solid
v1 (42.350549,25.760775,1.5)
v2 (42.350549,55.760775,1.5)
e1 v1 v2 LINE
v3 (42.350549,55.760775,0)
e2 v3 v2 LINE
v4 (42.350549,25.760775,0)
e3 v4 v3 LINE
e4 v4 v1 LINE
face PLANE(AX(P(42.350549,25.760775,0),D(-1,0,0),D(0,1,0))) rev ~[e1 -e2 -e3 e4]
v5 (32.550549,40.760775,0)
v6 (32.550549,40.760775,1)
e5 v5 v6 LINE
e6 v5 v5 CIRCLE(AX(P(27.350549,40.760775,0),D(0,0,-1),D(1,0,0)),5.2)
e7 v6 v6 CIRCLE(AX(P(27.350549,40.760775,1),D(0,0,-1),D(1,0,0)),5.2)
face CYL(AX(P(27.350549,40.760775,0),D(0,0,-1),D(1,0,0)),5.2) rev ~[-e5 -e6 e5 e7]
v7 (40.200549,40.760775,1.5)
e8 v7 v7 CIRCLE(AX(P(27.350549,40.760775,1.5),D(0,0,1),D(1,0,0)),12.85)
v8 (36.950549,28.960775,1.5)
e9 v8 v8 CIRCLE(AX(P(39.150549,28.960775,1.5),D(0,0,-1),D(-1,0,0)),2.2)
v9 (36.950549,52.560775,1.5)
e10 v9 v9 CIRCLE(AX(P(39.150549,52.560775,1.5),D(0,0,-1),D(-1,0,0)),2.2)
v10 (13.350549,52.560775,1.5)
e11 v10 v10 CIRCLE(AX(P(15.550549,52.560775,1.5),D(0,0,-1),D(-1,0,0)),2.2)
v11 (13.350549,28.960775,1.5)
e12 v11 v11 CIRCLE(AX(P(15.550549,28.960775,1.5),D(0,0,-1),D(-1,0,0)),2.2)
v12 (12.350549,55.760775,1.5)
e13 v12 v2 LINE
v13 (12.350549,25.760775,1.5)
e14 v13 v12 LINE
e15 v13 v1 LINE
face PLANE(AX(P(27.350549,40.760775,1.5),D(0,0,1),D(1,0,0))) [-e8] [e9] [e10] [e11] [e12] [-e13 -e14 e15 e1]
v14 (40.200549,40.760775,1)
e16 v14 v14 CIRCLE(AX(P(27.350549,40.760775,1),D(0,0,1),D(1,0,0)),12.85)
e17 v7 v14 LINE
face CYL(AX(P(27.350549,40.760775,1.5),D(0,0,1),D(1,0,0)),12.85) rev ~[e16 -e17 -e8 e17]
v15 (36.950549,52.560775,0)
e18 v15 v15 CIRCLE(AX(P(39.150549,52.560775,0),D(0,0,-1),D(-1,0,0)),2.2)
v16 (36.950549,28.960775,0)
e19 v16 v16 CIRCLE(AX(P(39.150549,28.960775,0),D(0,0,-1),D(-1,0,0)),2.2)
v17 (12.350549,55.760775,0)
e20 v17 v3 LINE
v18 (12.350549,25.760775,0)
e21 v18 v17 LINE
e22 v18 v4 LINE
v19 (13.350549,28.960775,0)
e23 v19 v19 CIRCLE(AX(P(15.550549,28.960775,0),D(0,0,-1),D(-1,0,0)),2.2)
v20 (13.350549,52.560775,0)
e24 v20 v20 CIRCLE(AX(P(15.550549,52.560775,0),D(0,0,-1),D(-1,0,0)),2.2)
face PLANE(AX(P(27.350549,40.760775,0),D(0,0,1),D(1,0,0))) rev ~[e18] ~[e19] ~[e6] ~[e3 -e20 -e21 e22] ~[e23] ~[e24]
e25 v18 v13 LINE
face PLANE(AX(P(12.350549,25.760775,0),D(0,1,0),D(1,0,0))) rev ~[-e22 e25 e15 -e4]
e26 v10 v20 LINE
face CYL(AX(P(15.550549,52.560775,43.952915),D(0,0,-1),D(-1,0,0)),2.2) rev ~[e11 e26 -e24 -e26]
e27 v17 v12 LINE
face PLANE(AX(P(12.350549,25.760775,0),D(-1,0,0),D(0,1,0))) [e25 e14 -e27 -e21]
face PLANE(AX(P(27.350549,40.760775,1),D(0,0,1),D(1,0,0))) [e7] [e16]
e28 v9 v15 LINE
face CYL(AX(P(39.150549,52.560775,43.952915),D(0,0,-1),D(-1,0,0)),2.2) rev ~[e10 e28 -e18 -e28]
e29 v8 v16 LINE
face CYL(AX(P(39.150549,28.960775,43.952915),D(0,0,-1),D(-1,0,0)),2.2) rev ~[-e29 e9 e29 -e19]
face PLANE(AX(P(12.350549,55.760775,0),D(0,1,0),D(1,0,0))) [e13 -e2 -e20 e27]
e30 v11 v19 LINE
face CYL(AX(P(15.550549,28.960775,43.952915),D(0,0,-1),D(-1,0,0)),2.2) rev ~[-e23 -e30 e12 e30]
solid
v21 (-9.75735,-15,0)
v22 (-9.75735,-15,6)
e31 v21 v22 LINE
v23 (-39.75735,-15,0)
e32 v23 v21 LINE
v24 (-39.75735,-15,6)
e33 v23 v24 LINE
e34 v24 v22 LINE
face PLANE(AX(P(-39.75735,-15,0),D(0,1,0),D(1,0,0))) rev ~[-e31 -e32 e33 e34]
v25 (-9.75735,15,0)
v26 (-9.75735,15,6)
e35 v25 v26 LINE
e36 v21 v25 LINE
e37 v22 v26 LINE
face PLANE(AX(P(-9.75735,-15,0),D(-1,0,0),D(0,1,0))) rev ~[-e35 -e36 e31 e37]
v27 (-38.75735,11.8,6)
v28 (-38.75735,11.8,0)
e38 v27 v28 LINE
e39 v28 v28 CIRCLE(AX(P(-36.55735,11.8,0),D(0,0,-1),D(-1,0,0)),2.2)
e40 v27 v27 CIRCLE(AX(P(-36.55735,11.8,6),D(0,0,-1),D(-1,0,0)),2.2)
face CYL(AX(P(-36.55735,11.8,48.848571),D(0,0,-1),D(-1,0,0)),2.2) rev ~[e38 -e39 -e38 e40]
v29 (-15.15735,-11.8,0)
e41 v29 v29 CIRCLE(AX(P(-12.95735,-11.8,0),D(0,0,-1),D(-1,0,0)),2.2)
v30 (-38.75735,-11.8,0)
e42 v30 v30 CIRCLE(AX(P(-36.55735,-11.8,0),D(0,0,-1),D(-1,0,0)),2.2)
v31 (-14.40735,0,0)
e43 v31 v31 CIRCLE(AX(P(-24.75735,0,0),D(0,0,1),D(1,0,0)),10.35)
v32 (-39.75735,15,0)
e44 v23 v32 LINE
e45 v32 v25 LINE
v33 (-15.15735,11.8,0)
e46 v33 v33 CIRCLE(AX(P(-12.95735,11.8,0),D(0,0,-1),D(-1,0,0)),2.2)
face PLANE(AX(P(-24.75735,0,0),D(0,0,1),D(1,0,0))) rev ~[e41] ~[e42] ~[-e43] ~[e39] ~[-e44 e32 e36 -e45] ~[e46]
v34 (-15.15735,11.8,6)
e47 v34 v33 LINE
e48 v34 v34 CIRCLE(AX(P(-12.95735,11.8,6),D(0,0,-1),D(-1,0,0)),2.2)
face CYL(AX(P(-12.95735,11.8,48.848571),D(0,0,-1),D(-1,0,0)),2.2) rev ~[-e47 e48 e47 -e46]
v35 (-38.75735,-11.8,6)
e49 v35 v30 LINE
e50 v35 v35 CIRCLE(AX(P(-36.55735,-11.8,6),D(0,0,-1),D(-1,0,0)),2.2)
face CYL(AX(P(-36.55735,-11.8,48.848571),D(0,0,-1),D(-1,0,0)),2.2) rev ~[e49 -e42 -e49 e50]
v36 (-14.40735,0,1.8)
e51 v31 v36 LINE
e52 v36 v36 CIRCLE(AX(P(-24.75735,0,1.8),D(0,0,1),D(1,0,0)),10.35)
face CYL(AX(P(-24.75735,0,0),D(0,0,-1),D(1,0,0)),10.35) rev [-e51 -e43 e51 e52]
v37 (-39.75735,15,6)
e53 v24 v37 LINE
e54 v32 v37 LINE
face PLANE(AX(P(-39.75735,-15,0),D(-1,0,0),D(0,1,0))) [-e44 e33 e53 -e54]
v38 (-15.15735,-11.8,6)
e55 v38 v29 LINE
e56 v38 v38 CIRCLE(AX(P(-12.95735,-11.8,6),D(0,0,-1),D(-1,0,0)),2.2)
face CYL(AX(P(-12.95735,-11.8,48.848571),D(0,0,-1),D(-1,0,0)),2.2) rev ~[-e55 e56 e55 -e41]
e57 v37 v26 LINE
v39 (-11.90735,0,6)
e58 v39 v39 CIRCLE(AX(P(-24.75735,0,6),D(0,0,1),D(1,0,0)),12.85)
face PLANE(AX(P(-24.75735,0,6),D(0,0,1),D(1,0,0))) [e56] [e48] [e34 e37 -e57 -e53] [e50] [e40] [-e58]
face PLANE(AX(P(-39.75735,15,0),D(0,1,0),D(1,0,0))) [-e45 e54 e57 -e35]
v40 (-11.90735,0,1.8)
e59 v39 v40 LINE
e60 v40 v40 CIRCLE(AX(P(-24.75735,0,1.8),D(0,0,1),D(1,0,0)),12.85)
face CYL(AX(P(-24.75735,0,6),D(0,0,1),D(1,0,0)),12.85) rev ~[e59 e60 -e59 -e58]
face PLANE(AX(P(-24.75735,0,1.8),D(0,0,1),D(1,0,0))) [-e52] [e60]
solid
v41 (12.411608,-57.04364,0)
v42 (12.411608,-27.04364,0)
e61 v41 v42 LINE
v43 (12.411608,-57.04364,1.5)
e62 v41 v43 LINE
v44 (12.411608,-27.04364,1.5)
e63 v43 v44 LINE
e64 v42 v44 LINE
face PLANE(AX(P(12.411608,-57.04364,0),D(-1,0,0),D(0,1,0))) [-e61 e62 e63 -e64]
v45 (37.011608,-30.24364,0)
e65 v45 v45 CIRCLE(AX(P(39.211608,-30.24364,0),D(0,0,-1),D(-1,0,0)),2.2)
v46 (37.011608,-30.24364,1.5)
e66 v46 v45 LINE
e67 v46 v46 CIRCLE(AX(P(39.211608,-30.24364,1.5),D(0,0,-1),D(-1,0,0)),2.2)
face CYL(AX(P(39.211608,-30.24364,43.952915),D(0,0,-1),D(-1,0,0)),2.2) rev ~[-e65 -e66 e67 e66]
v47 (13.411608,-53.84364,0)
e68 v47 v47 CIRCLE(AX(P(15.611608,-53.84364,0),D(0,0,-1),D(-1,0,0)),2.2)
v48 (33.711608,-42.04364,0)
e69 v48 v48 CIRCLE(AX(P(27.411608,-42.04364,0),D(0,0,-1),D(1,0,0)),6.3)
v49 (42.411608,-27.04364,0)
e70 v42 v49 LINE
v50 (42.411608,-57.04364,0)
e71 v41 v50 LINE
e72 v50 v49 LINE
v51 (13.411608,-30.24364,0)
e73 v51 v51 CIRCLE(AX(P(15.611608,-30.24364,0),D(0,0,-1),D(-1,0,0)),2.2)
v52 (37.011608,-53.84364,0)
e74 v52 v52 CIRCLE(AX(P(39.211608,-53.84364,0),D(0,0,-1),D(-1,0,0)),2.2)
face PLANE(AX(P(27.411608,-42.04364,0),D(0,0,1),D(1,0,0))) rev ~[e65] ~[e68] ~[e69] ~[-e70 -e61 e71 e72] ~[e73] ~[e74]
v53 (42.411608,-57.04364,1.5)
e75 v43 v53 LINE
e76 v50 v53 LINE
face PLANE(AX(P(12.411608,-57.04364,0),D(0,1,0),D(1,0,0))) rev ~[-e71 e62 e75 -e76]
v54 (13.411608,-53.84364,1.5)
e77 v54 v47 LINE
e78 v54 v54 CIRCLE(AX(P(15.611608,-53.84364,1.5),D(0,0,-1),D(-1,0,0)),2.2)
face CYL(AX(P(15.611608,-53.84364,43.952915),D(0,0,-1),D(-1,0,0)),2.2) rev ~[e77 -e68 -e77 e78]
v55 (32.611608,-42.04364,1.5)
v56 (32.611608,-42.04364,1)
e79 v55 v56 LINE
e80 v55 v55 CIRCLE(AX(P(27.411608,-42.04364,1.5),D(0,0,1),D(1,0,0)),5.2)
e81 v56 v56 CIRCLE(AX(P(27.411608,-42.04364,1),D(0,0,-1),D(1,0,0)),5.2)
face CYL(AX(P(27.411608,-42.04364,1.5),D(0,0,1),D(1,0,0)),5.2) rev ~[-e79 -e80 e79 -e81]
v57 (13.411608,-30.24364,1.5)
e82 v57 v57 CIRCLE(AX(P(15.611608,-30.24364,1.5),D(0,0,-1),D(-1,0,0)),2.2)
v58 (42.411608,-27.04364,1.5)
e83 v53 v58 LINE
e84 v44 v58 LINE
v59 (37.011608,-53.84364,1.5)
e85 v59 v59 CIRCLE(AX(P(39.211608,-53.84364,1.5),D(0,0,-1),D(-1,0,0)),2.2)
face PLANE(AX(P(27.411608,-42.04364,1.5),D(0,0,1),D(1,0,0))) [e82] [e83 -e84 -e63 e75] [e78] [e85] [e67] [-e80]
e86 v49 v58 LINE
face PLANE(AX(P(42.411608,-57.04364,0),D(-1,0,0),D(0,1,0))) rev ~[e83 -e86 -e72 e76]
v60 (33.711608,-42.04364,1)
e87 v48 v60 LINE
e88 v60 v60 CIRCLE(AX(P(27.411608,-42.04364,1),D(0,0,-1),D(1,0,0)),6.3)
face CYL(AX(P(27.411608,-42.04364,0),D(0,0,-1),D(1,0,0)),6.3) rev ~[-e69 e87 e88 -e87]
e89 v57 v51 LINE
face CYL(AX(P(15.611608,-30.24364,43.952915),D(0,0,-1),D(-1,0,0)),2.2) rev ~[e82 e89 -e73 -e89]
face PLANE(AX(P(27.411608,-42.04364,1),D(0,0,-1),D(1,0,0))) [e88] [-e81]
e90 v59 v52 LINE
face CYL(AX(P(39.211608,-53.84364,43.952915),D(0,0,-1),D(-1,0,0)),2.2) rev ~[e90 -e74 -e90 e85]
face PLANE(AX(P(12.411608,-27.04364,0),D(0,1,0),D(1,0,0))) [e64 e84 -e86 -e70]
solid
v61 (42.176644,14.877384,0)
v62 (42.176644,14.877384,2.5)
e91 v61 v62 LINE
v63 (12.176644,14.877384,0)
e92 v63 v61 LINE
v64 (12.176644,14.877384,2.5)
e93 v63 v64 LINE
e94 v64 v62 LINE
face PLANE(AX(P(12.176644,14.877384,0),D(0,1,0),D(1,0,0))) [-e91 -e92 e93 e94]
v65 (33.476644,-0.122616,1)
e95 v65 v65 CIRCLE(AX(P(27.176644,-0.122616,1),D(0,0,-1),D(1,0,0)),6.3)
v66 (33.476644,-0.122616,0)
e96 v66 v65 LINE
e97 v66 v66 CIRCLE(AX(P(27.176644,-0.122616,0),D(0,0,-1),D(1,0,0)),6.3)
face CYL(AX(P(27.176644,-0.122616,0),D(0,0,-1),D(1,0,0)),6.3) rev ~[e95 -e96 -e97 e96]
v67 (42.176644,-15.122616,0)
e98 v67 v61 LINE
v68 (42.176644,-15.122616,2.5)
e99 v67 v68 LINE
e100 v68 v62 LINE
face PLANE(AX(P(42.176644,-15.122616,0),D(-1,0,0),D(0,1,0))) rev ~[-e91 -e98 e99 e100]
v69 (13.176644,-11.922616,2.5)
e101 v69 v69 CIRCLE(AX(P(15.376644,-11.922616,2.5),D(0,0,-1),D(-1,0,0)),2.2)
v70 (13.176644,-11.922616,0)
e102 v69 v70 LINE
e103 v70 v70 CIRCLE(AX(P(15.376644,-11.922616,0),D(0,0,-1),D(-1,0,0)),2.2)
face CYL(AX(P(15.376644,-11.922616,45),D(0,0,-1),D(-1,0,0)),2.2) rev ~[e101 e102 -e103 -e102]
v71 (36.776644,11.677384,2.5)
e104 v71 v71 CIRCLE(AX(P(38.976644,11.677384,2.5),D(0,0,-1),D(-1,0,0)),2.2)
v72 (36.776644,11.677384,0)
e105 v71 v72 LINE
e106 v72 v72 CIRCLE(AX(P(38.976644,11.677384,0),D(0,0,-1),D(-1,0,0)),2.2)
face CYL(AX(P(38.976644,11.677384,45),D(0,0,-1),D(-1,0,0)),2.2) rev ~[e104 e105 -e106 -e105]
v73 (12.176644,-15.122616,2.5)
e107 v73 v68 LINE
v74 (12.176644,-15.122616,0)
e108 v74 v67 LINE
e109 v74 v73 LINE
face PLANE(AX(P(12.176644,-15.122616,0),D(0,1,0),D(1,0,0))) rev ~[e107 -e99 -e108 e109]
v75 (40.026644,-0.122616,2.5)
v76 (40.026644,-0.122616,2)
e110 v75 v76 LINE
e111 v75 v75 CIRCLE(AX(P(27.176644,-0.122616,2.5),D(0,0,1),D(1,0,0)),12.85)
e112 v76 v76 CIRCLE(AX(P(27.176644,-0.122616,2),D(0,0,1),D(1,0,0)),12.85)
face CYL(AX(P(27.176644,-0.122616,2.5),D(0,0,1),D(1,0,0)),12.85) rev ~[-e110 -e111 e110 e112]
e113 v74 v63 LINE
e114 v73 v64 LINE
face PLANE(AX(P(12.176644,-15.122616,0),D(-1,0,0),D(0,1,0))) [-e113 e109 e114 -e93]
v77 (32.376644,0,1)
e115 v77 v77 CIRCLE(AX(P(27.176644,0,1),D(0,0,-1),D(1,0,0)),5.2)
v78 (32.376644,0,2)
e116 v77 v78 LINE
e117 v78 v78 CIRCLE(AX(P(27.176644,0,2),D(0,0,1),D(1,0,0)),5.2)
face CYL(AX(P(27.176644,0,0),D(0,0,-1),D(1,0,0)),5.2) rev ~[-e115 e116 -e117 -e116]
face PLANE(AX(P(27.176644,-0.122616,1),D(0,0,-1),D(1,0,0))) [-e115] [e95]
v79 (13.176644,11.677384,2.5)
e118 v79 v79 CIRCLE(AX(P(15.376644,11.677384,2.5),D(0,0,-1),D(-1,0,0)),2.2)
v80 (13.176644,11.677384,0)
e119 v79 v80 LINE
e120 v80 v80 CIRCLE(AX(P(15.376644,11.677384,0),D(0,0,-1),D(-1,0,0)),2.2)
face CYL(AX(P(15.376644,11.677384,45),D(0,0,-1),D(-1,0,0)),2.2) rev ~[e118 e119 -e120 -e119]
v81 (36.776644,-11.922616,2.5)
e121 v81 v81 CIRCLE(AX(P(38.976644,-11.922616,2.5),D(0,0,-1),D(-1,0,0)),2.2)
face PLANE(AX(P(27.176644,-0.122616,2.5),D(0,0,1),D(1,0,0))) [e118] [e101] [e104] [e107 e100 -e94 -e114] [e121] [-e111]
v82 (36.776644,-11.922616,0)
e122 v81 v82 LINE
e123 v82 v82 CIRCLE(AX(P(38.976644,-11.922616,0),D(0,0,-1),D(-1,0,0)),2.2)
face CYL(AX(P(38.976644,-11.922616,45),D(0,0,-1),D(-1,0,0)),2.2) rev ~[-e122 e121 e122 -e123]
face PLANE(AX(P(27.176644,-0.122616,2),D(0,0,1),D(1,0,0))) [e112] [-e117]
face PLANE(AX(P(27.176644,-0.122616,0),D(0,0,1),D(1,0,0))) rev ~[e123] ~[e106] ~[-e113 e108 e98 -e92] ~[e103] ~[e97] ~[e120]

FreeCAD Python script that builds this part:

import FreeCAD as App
import Part
import Sketcher

V = App.Vector
Q = App.Units.Quantity


def add_polygon(sketch, points):
    """Adds a closed chain of lines whose ends are joined by coincident constraints."""
    first, n = sketch.GeometryCount, len(points)
    for a, b in zip(points, points[1:] + points[:1]):
        sketch.addGeometry(Part.LineSegment(App.Vector(*a, 0), App.Vector(*b, 0)), False)
    for i in range(n):
        sketch.addConstraint(Sketcher.Constraint("Coincident", first + i, 2, first + (i + 1) % n, 1))

doc = App.newDocument("Part")
body = doc.addObject("PartDesign::Body", "Body")

# Sketch on XY plane
sketch1 = body.newObject("Sketcher::SketchObject", "Sketch")
sketch1.AttachmentSupport = (doc.getObject("XY_Plane"), [""])
sketch1.MapMode = "FlatFace"
add_polygon(sketch1, [(-40, 15), (-40, -15), (-10, -15), (-10, 15)])  # lines 0-3
sketch1.addGeometry(Part.Circle(V(-25, 0, 0), V(0, 0, 1), 10), False)  # 4
sketch1.addConstraint([
    Sketcher.Constraint("Vertical", 0),
    Sketcher.Constraint("Horizontal", 1),
    Sketcher.Constraint("Vertical", 2),
    Sketcher.Constraint("Horizontal", 3),
    Sketcher.Constraint("PointOnObject", 4, 3, -1),
    Sketcher.Constraint("Equal", 3, 0),
    Sketcher.Constraint("Diameter", 4, Q("20.7 mm")),
    Sketcher.Constraint("DistanceX", 1, 1, 1, 2, Q("30 mm")),
    Sketcher.Constraint("DistanceY", 0, 2, -1, 1, Q("15 mm")),
    Sketcher.Constraint("DistanceX", 0, 2, 4, 3, Q("15 mm")),
    Sketcher.Constraint("DistanceX", 4, 3, -1, 1, Q("24.75735 mm")),
])
pad1 = body.newObject("PartDesign::Pad", "Pad")
pad1.Profile = sketch1
pad1.Length = 6

# Sketch on XY plane
sketch2 = body.newObject("Sketcher::SketchObject", "Sketch001")
sketch2.AttachmentSupport = (doc.getObject("XY_Plane"), [""])
sketch2.MapMode = "FlatFace"
sketch2.AttachmentOffset = App.Placement(V(0, 0, 6), App.Rotation())
sketch2.addGeometry([
    Part.Circle(V(-25, 0, 0), V(0, 0, 1), 13),
    Part.Circle(V(-25, 0, 0), V(0, 0, 1), 10),
], False)
sketch2.addConstraint([
    Sketcher.Constraint("Coincident", 1, 3, 0, 3),
    Sketcher.Constraint("PointOnObject", 0, 3, -1),
    Sketcher.Constraint("Diameter", 0, Q("25.7 mm")),
    Sketcher.Constraint("Diameter", 1, Q("20.7 mm")),
    Sketcher.Constraint("DistanceX", 0, 3, -1, 1, Q("24.75735 mm")),
])
pocket1 = body.newObject("PartDesign::Pocket", "Pocket")
pocket1.Profile = sketch2
pocket1.Length = 4.2

# Sketch on XY plane
sketch3 = body.newObject("Sketcher::SketchObject", "Sketch002")
sketch3.AttachmentSupport = (doc.getObject("XY_Plane"), [""])
sketch3.MapMode = "FlatFace"
sketch3.AttachmentOffset = App.Placement(V(0, 0, 6), App.Rotation())
sketch3.addGeometry(Part.Circle(V(-36.6, 11.8, 0), V(0, 0, 1), 2.2), False)
sketch3.addConstraint([
    Sketcher.Constraint("Diameter", 0, Q("4.4 mm")),
    Sketcher.Constraint("DistanceY", -1, 1, 0, 3, Q("11.8 mm")),
    Sketcher.Constraint("DistanceX", 0, 3, -1, 1, Q("36.55735 mm")),
])
doc.recompute()
hole = body.newObject("PartDesign::Hole", "Hole")
hole.Profile = sketch3
hole.ThreadType = "None"
hole.Diameter = 4.4
hole.DepthType = "ThroughAll"

# Sketch on XY plane
sketch4 = body.newObject("Sketcher::SketchObject", "Sketch003")
sketch4.AttachmentSupport = (doc.getObject("XY_Plane"), [""])
sketch4.MapMode = "FlatFace"
sketch4.AttachmentOffset = App.Placement(V(0, 0, 6), App.Rotation())
sketch4.addGeometry(Part.Circle(V(-13, 11.8, 0), V(0, 0, 1), 2.2), False)
sketch4.addConstraint([
    Sketcher.Constraint("Diameter", 0, Q("4.4 mm")),
    Sketcher.Constraint("DistanceY", -1, 1, 0, 3, Q("11.8 mm")),
    Sketcher.Constraint("DistanceX", 0, 3, -1, 1, Q("12.95735 mm")),
])
doc.recompute()
hole2 = body.newObject("PartDesign::Hole", "Hole001")
hole2.Profile = sketch4
hole2.ThreadType = "None"
hole2.Diameter = 4.4
hole2.DepthType = "ThroughAll"

# Sketch on XY plane
sketch5 = body.newObject("Sketcher::SketchObject", "Sketch004")
sketch5.AttachmentSupport = (doc.getObject("XY_Plane"), [""])
sketch5.MapMode = "FlatFace"
sketch5.AttachmentOffset = App.Placement(V(0, 0, 6), App.Rotation())
sketch5.addGeometry(Part.Circle(V(-36.6, -11.8, 0), V(0, 0, 1), 2.2), False)
sketch5.addConstraint([
    Sketcher.Constraint("Diameter", 0, Q("4.4 mm")),
    Sketcher.Constraint("DistanceY", 0, 3, -1, 1, Q("11.8 mm")),
    Sketcher.Constraint("DistanceX", 0, 3, -1, 1, Q("36.55735 mm")),
])
doc.recompute()
hole3 = body.newObject("PartDesign::Hole", "Hole002")
hole3.Profile = sketch5
hole3.ThreadType = "None"
hole3.Diameter = 4.4
hole3.DepthType = "ThroughAll"

# Sketch on XY plane
sketch6 = body.newObject("Sketcher::SketchObject", "Sketch005")
sketch6.AttachmentSupport = (doc.getObject("XY_Plane"), [""])
sketch6.MapMode = "FlatFace"
sketch6.AttachmentOffset = App.Placement(V(0, 0, 6), App.Rotation())
sketch6.addGeometry(Part.Circle(V(-13, -11.8, 0), V(0, 0, 1), 2.2), False)
sketch6.addConstraint([
    Sketcher.Constraint("Diameter", 0, Q("4.4 mm")),
    Sketcher.Constraint("DistanceY", 0, 3, -1, 1, Q("11.8 mm")),
    Sketcher.Constraint("DistanceX", 0, 3, -1, 1, Q("12.95735 mm")),
])
doc.recompute()
hole4 = body.newObject("PartDesign::Hole", "Hole003")
hole4.Profile = sketch6
hole4.ThreadType = "None"
hole4.Diameter = 4.4
hole4.DepthType = "ThroughAll"
body2 = doc.addObject("PartDesign::Body", "Body001")

# Sketch on XY plane
sketch7 = body2.newObject("Sketcher::SketchObject", "Sketch006")
sketch7.AttachmentSupport = (doc.getObject("XY_Plane001"), [""])
sketch7.MapMode = "FlatFace"
add_polygon(sketch7, [(12, 15), (12, -15), (42, -15), (42, 15)])  # lines 0-3
sketch7.addConstraint([
    Sketcher.Constraint("Vertical", 0),
    Sketcher.Constraint("Horizontal", 1),
    Sketcher.Constraint("Vertical", 2),
    Sketcher.Constraint("Horizontal", 3),
    Sketcher.Constraint("Equal", 3, 0),
    Sketcher.Constraint("DistanceX", 1, 1, 1, 2, Q("30 mm")),
    Sketcher.Constraint("DistanceX", -1, 1, 0, 2, Q("12.176644 mm")),
    Sketcher.Constraint("DistanceY", 0, 2, -1, 1, Q("15.122616 mm")),
])
pad2 = body2.newObject("PartDesign::Pad", "Pad001")
pad2.Profile = sketch7
pad2.Length = 2.5

# Sketch on XY plane
sketch8 = body2.newObject("Sketcher::SketchObject", "Sketch007")
sketch8.AttachmentSupport = (doc.getObject("XY_Plane001"), [""])
sketch8.MapMode = "FlatFace"
sketch8.addGeometry(Part.Circle(V(27, 0, 0), V(0, 0, 1), 5), False)
sketch8.addConstraint([
    Sketcher.Constraint("PointOnObject", 0, 3, -1),
    Sketcher.Constraint("Diameter", 0, Q("10.4 mm")),
    Sketcher.Constraint("DistanceX", -1, 1, 0, 3, Q("27.176644 mm")),
])
pocket2 = body2.newObject("PartDesign::Pocket", "Pocket001")
pocket2.Profile = sketch8
pocket2.Type = "ThroughAll"
pocket2.Reversed = True

# Sketch on XY plane
sketch9 = body2.newObject("Sketcher::SketchObject", "Sketch008")
sketch9.AttachmentSupport = (doc.getObject("XY_Plane001"), [""])
sketch9.MapMode = "FlatFace"
sketch9.AttachmentOffset = App.Placement(V(0, 0, 2.5), App.Rotation())
sketch9.addGeometry([
    Part.Circle(V(27, 0, 0), V(0, 0, 1), 13),
    Part.Circle(V(27, 0, 0), V(0, 0, 1), 5),
], False)
sketch9.addConstraint([
    Sketcher.Constraint("PointOnObject", 1, 3, -1),
    Sketcher.Constraint("Vertical", 0, 3, 1, 3),
    Sketcher.Constraint("Diameter", 0, Q("25.7 mm")),
    Sketcher.Constraint("Diameter", 1, Q("10.4 mm")),
    Sketcher.Constraint("DistanceX", -1, 1, 0, 3, Q("27.176644 mm")),
    Sketcher.Constraint("DistanceY", 0, 3, -1, 1, Q("0.122616 mm")),
])
pocket3 = body2.newObject("PartDesign::Pocket", "Pocket002")
pocket3.Profile = sketch9
pocket3.Length = 0.5

# Sketch on XY plane
sketch10 = body2.newObject("Sketcher::SketchObject", "Sketch009")
sketch10.AttachmentSupport = (doc.getObject("XY_Plane001"), [""])
sketch10.MapMode = "FlatFace"
sketch10.AttachmentOffset = App.Placement(V(0, 0, 2.5), App.Rotation())
sketch10.addGeometry(Part.Circle(V(15.4, 11.7, 0), V(0, 0, 1), 2.2), False)
sketch10.addConstraint([
    Sketcher.Constraint("Diameter", 0, Q("4.4 mm")),
    Sketcher.Constraint("DistanceX", -1, 1, 0, 3, Q("15.376644 mm")),
    Sketcher.Constraint("DistanceY", -1, 1, 0, 3, Q("11.677384 mm")),
])
doc.recompute()
hole5 = body2.newObject("PartDesign::Hole", "Hole004")
hole5.Profile = sketch10
hole5.ThreadType = "None"
hole5.Diameter = 4.4
hole5.DepthType = "ThroughAll"

# Sketch on XY plane
sketch11 = body2.newObject("Sketcher::SketchObject", "Sketch010")
sketch11.AttachmentSupport = (doc.getObject("XY_Plane001"), [""])
sketch11.MapMode = "FlatFace"
sketch11.AttachmentOffset = App.Placement(V(0, 0, 2.5), App.Rotation())
sketch11.addGeometry(Part.Circle(V(39, 11.7, 0), V(0, 0, 1), 2.2), False)
sketch11.addConstraint([
    Sketcher.Constraint("Diameter", 0, Q("4.4 mm")),
    Sketcher.Constraint("DistanceX", -1, 1, 0, 3, Q("38.976644 mm")),
    Sketcher.Constraint("DistanceY", -1, 1, 0, 3, Q("11.677384 mm")),
])
doc.recompute()
hole6 = body2.newObject("PartDesign::Hole", "Hole005")
hole6.Profile = sketch11
hole6.ThreadType = "None"
hole6.Diameter = 4.4
hole6.DepthType = "ThroughAll"

# Sketch on XY plane
sketch12 = body2.newObject("Sketcher::SketchObject", "Sketch011")
sketch12.AttachmentSupport = (doc.getObject("XY_Plane001"), [""])
sketch12.MapMode = "FlatFace"
sketch12.AttachmentOffset = App.Placement(V(0, 0, 2.5), App.Rotation())
sketch12.addGeometry(Part.Circle(V(15.4, -11.9, 0), V(0, 0, 1), 2.2), False)
sketch12.addConstraint([
    Sketcher.Constraint("Diameter", 0, Q("4.4 mm")),
    Sketcher.Constraint("DistanceX", -1, 1, 0, 3, Q("15.376644 mm")),
    Sketcher.Constraint("DistanceY", 0, 3, -1, 1, Q("11.922616 mm")),
])
doc.recompute()
hole7 = body2.newObject("PartDesign::Hole", "Hole006")
hole7.Profile = sketch12
hole7.ThreadType = "None"
hole7.Diameter = 4.4
hole7.DepthType = "ThroughAll"

# Sketch on XY plane
sketch13 = body2.newObject("Sketcher::SketchObject", "Sketch012")
sketch13.AttachmentSupport = (doc.getObject("XY_Plane001"), [""])
sketch13.MapMode = "FlatFace"
sketch13.AttachmentOffset = App.Placement(V(0, 0, 2.5), App.Rotation())
sketch13.addGeometry(Part.Circle(V(39, -11.9, 0), V(0, 0, 1), 2.2), False)
sketch13.addConstraint([
    Sketcher.Constraint("Diameter", 0, Q("4.4 mm")),
    Sketcher.Constraint("DistanceX", -1, 1, 0, 3, Q("38.976644 mm")),
    Sketcher.Constraint("DistanceY", 0, 3, -1, 1, Q("11.922616 mm")),
])
doc.recompute()
hole8 = body2.newObject("PartDesign::Hole", "Hole007")
hole8.Profile = sketch13
hole8.ThreadType = "None"
hole8.Diameter = 4.4
hole8.DepthType = "ThroughAll"

# Sketch on XY plane
sketch14 = body2.newObject("Sketcher::SketchObject", "Sketch013")
sketch14.AttachmentSupport = (doc.getObject("XY_Plane001"), [""])
sketch14.MapMode = "FlatFace"
sketch14.addGeometry([
    Part.Circle(V(27, 0, 0), V(0, 0, 1), 6),
    Part.Circle(V(27, 0, 0), V(0, 0, 1), 5),
], False)
sketch14.addConstraint([
    Sketcher.Constraint("PointOnObject", 1, 3, -1),
    Sketcher.Constraint("Vertical", 0, 3, 1, 3),
    Sketcher.Constraint("Diameter", 0, Q("12.6 mm")),
    Sketcher.Constraint("Diameter", 1, Q("10.4 mm")),
    Sketcher.Constraint("DistanceX", -1, 1, 0, 3, Q("27.176644 mm")),
    Sketcher.Constraint("DistanceY", 0, 3, -1, 1, Q("0.122616 mm")),
])
pocket4 = body2.newObject("PartDesign::Pocket", "Pocket003")
pocket4.Profile = sketch14
pocket4.Length = 1
pocket4.Reversed = True
body3 = doc.addObject("PartDesign::Body", "Body002")

# Sketch on XY plane
sketch15 = body3.newObject("Sketcher::SketchObject", "Sketch014")
sketch15.AttachmentSupport = (doc.getObject("XY_Plane002"), [""])
sketch15.MapMode = "FlatFace"
add_polygon(sketch15, [(12, 56), (12, 26), (42, 26), (42, 56)])  # lines 0-3
sketch15.addConstraint([
    Sketcher.Constraint("Vertical", 0),
    Sketcher.Constraint("Horizontal", 1),
    Sketcher.Constraint("Vertical", 2),
    Sketcher.Constraint("Horizontal", 3),
    Sketcher.Constraint("Equal", 3, 0),
    Sketcher.Constraint("DistanceX", 1, 1, 1, 2, Q("30 mm")),
    Sketcher.Constraint("DistanceX", -1, 1, 0, 2, Q("12.350549 mm")),
    Sketcher.Constraint("DistanceY", -1, 1, 0, 2, Q("25.760775 mm")),
])
pad3 = body3.newObject("PartDesign::Pad", "Pad002")
pad3.Profile = sketch15
pad3.Length = 1.5

# Sketch on XY plane
sketch16 = body3.newObject("Sketcher::SketchObject", "Sketch015")
sketch16.AttachmentSupport = (doc.getObject("XY_Plane002"), [""])
sketch16.MapMode = "FlatFace"
sketch16.AttachmentOffset = App.Placement(V(0, 0, 1.5), App.Rotation())
sketch16.addGeometry(Part.Circle(V(27, 41, 0), V(0, 0, 1), 13), False)
sketch16.addConstraint([
    Sketcher.Constraint("Diameter", 0, Q("25.7 mm")),
    Sketcher.Constraint("DistanceX", -1, 1, 0, 3, Q("27.350549 mm")),
    Sketcher.Constraint("DistanceY", -1, 1, 0, 3, Q("40.760775 mm")),
])
pocket5 = body3.newObject("PartDesign::Pocket", "Pocket004")
pocket5.Profile = sketch16
pocket5.Length = 0.5

# Sketch on XY plane
sketch17 = body3.newObject("Sketcher::SketchObject", "Sketch016")
sketch17.AttachmentSupport = (doc.getObject("XY_Plane002"), [""])
sketch17.MapMode = "FlatFace"
sketch17.addGeometry(Part.Circle(V(27, 41, 0), V(0, 0, 1), 5), False)
sketch17.addConstraint([
    Sketcher.Constraint("Diameter", 0, Q("10.4 mm")),
    Sketcher.Constraint("DistanceX", -1, 1, 0, 3, Q("27.350549 mm")),
    Sketcher.Constraint("DistanceY", -1, 1, 0, 3, Q("40.760775 mm")),
])
pocket6 = body3.newObject("PartDesign::Pocket", "Pocket005")
pocket6.Profile = sketch17
pocket6.Type = "ThroughAll"
pocket6.Reversed = True

# Sketch on XY plane
sketch18 = body3.newObject("Sketcher::SketchObject", "Sketch017")
sketch18.AttachmentSupport = (doc.getObject("XY_Plane002"), [""])
sketch18.MapMode = "FlatFace"
sketch18.AttachmentOffset = App.Placement(V(0, 0, 1.5), App.Rotation())
sketch18.addGeometry(Part.Circle(V(15.6, 52.6, 0), V(0, 0, 1), 2.2), False)
sketch18.addConstraint([
    Sketcher.Constraint("Diameter", 0, Q("4.4 mm")),
    Sketcher.Constraint("DistanceX", -1, 1, 0, 3, Q("15.550549 mm")),
    Sketcher.Constraint("DistanceY", -1, 1, 0, 3, Q("52.560775 mm")),
])
doc.recompute()
hole9 = body3.newObject("PartDesign::Hole", "Hole008")
hole9.Profile = sketch18
hole9.ThreadType = "None"
hole9.Diameter = 4.4
hole9.DepthType = "ThroughAll"

# Sketch on XY plane
sketch19 = body3.newObject("Sketcher::SketchObject", "Sketch018")
sketch19.AttachmentSupport = (doc.getObject("XY_Plane002"), [""])
sketch19.MapMode = "FlatFace"
sketch19.AttachmentOffset = App.Placement(V(0, 0, 1.5), App.Rotation())
sketch19.addGeometry(Part.Circle(V(39.2, 52.6, 0), V(0, 0, 1), 2.2), False)
sketch19.addConstraint([
    Sketcher.Constraint("Diameter", 0, Q("4.4 mm")),
    Sketcher.Constraint("DistanceX", -1, 1, 0, 3, Q("39.150549 mm")),
    Sketcher.Constraint("DistanceY", -1, 1, 0, 3, Q("52.560775 mm")),
])
doc.recompute()
hole10 = body3.newObject("PartDesign::Hole", "Hole009")
hole10.Profile = sketch19
hole10.ThreadType = "None"
hole10.Diameter = 4.4
hole10.DepthType = "ThroughAll"

# Sketch on XY plane
sketch20 = body3.newObject("Sketcher::SketchObject", "Sketch019")
sketch20.AttachmentSupport = (doc.getObject("XY_Plane002"), [""])
sketch20.MapMode = "FlatFace"
sketch20.AttachmentOffset = App.Placement(V(0, 0, 1.5), App.Rotation())
sketch20.addGeometry(Part.Circle(V(15.6, 29, 0), V(0, 0, 1), 2.2), False)
sketch20.addConstraint([
    Sketcher.Constraint("Diameter", 0, Q("4.4 mm")),
    Sketcher.Constraint("DistanceX", -1, 1, 0, 3, Q("15.550549 mm")),
    Sketcher.Constraint("DistanceY", -1, 1, 0, 3, Q("28.960775 mm")),
])
doc.recompute()
hole11 = body3.newObject("PartDesign::Hole", "Hole010")
hole11.Profile = sketch20
hole11.ThreadType = "None"
hole11.Diameter = 4.4
hole11.DepthType = "ThroughAll"

# Sketch on XY plane
sketch21 = body3.newObject("Sketcher::SketchObject", "Sketch020")
sketch21.AttachmentSupport = (doc.getObject("XY_Plane002"), [""])
sketch21.MapMode = "FlatFace"
sketch21.AttachmentOffset = App.Placement(V(0, 0, 1.5), App.Rotation())
sketch21.addGeometry(Part.Circle(V(39.2, 29, 0), V(0, 0, 1), 2.2), False)
sketch21.addConstraint([
    Sketcher.Constraint("Diameter", 0, Q("4.4 mm")),
    Sketcher.Constraint("DistanceX", -1, 1, 0, 3, Q("39.150549 mm")),
    Sketcher.Constraint("DistanceY", -1, 1, 0, 3, Q("28.960775 mm")),
])
doc.recompute()
hole12 = body3.newObject("PartDesign::Hole", "Hole011")
hole12.Profile = sketch21
hole12.ThreadType = "None"
hole12.Diameter = 4.4
hole12.DepthType = "ThroughAll"
body4 = doc.addObject("PartDesign::Body", "Body003")

# Sketch on XY plane
sketch22 = body4.newObject("Sketcher::SketchObject", "Sketch021")
sketch22.AttachmentSupport = (doc.getObject("XY_Plane003"), [""])
sketch22.MapMode = "FlatFace"
add_polygon(sketch22, [(12, -27), (12, -57), (42, -57), (42, -27)])  # lines 0-3
sketch22.addConstraint([
    Sketcher.Constraint("Vertical", 0),
    Sketcher.Constraint("Horizontal", 1),
    Sketcher.Constraint("Vertical", 2),
    Sketcher.Constraint("Horizontal", 3),
    Sketcher.Constraint("Equal", 3, 0),
    Sketcher.Constraint("DistanceX", 1, 1, 1, 2, Q("30 mm")),
    Sketcher.Constraint("DistanceY", 0, 2, -1, 1, Q("57.04364 mm")),
    Sketcher.Constraint("DistanceX", -1, 1, 0, 2, Q("12.411608 mm")),
])
pad4 = body4.newObject("PartDesign::Pad", "Pad003")
pad4.Profile = sketch22
pad4.Length = 1.5

# Sketch on XY plane
sketch23 = body4.newObject("Sketcher::SketchObject", "Sketch022")
sketch23.AttachmentSupport = (doc.getObject("XY_Plane003"), [""])
sketch23.MapMode = "FlatFace"
sketch23.AttachmentOffset = App.Placement(V(0, 0, 1.5), App.Rotation())
sketch23.addGeometry(Part.Circle(V(27, -42, 0), V(0, 0, 1), 5), False)
sketch23.addConstraint([
    Sketcher.Constraint("Diameter", 0, Q("10.4 mm")),
    Sketcher.Constraint("DistanceY", 0, 3, -1, 1, Q("42.04364 mm")),
    Sketcher.Constraint("DistanceX", -1, 1, 0, 3, Q("27.411608 mm")),
])
pocket7 = body4.newObject("PartDesign::Pocket", "Pocket006")
pocket7.Profile = sketch23
pocket7.Length = 1.5

# Sketch on XY plane
sketch24 = body4.newObject("Sketcher::SketchObject", "Sketch023")
sketch24.AttachmentSupport = (doc.getObject("XY_Plane003"), [""])
sketch24.MapMode = "FlatFace"
sketch24.addGeometry([
    Part.Circle(V(27, -42, 0), V(0, 0, 1), 6),
    Part.Circle(V(27, -42, 0), V(0, 0, 1), 5),
], False)
sketch24.addConstraint([
    Sketcher.Constraint("Coincident", 1, 3, 0, 3),
    Sketcher.Constraint("Diameter", 0, Q("12.6 mm")),
    Sketcher.Constraint("Diameter", 1, Q("10.4 mm")),
    Sketcher.Constraint("DistanceY", 0, 3, -1, 1, Q("42.04364 mm")),
    Sketcher.Constraint("DistanceX", -1, 1, 0, 3, Q("27.411608 mm")),
])
pocket8 = body4.newObject("PartDesign::Pocket", "Pocket007")
pocket8.Profile = sketch24
pocket8.Length = 1
pocket8.Reversed = True

# Sketch on XY plane
sketch25 = body4.newObject("Sketcher::SketchObject", "Sketch024")
sketch25.AttachmentSupport = (doc.getObject("XY_Plane003"), [""])
sketch25.MapMode = "FlatFace"
sketch25.AttachmentOffset = App.Placement(V(0, 0, 1.5), App.Rotation())
sketch25.addGeometry(Part.Circle(V(15.6, -53.8, 0), V(0, 0, 1), 2.2), False)
sketch25.addConstraint([
    Sketcher.Constraint("Diameter", 0, Q("4.4 mm")),
    Sketcher.Constraint("DistanceY", 0, 3, -1, 1, Q("53.84364 mm")),
    Sketcher.Constraint("DistanceX", -1, 1, 0, 3, Q("15.611608 mm")),
])
doc.recompute()
hole13 = body4.newObject("PartDesign::Hole", "Hole012")
hole13.Profile = sketch25
hole13.ThreadType = "None"
hole13.Diameter = 4.4
hole13.DepthType = "ThroughAll"

# Sketch on XY plane
sketch26 = body4.newObject("Sketcher::SketchObject", "Sketch025")
sketch26.AttachmentSupport = (doc.getObject("XY_Plane003"), [""])
sketch26.MapMode = "FlatFace"
sketch26.AttachmentOffset = App.Placement(V(0, 0, 1.5), App.Rotation())
sketch26.addGeometry(Part.Circle(V(15.6, -30.2, 0), V(0, 0, 1), 2.2), False)
sketch26.addConstraint([
    Sketcher.Constraint("Diameter", 0, Q("4.4 mm")),
    Sketcher.Constraint("DistanceY", 0, 3, -1, 1, Q("30.24364 mm")),
    Sketcher.Constraint("DistanceX", -1, 1, 0, 3, Q("15.611608 mm")),
])
doc.recompute()
hole14 = body4.newObject("PartDesign::Hole", "Hole013")
hole14.Profile = sketch26
hole14.ThreadType = "None"
hole14.Diameter = 4.4
hole14.DepthType = "ThroughAll"

# Sketch on XY plane
sketch27 = body4.newObject("Sketcher::SketchObject", "Sketch026")
sketch27.AttachmentSupport = (doc.getObject("XY_Plane003"), [""])
sketch27.MapMode = "FlatFace"
sketch27.AttachmentOffset = App.Placement(V(0, 0, 1.5), App.Rotation())
sketch27.addGeometry(Part.Circle(V(39.2, -53.8, 0), V(0, 0, 1), 2.2), False)
sketch27.addConstraint([
    Sketcher.Constraint("Diameter", 0, Q("4.4 mm")),
    Sketcher.Constraint("DistanceY", 0, 3, -1, 1, Q("53.84364 mm")),
    Sketcher.Constraint("DistanceX", -1, 1, 0, 3, Q("39.211608 mm")),
])
doc.recompute()
hole15 = body4.newObject("PartDesign::Hole", "Hole014")
hole15.Profile = sketch27
hole15.ThreadType = "None"
hole15.Diameter = 4.4
hole15.DepthType = "ThroughAll"

# Sketch on XY plane
sketch28 = body4.newObject("Sketcher::SketchObject", "Sketch027")
sketch28.AttachmentSupport = (doc.getObject("XY_Plane003"), [""])
sketch28.MapMode = "FlatFace"
sketch28.AttachmentOffset = App.Placement(V(0, 0, 1.5), App.Rotation())
sketch28.addGeometry(Part.Circle(V(39.2, -30.2, 0), V(0, 0, 1), 2.2), False)
sketch28.addConstraint([
    Sketcher.Constraint("Diameter", 0, Q("4.4 mm")),
    Sketcher.Constraint("DistanceY", 0, 3, -1, 1, Q("30.24364 mm")),
    Sketcher.Constraint("DistanceX", -1, 1, 0, 3, Q("39.211608 mm")),
])
doc.recompute()
hole16 = body4.newObject("PartDesign::Hole", "Hole015")
hole16.Profile = sketch28
hole16.ThreadType = "None"
hole16.Diameter = 4.4
hole16.DepthType = "ThroughAll"

doc.recompute()
